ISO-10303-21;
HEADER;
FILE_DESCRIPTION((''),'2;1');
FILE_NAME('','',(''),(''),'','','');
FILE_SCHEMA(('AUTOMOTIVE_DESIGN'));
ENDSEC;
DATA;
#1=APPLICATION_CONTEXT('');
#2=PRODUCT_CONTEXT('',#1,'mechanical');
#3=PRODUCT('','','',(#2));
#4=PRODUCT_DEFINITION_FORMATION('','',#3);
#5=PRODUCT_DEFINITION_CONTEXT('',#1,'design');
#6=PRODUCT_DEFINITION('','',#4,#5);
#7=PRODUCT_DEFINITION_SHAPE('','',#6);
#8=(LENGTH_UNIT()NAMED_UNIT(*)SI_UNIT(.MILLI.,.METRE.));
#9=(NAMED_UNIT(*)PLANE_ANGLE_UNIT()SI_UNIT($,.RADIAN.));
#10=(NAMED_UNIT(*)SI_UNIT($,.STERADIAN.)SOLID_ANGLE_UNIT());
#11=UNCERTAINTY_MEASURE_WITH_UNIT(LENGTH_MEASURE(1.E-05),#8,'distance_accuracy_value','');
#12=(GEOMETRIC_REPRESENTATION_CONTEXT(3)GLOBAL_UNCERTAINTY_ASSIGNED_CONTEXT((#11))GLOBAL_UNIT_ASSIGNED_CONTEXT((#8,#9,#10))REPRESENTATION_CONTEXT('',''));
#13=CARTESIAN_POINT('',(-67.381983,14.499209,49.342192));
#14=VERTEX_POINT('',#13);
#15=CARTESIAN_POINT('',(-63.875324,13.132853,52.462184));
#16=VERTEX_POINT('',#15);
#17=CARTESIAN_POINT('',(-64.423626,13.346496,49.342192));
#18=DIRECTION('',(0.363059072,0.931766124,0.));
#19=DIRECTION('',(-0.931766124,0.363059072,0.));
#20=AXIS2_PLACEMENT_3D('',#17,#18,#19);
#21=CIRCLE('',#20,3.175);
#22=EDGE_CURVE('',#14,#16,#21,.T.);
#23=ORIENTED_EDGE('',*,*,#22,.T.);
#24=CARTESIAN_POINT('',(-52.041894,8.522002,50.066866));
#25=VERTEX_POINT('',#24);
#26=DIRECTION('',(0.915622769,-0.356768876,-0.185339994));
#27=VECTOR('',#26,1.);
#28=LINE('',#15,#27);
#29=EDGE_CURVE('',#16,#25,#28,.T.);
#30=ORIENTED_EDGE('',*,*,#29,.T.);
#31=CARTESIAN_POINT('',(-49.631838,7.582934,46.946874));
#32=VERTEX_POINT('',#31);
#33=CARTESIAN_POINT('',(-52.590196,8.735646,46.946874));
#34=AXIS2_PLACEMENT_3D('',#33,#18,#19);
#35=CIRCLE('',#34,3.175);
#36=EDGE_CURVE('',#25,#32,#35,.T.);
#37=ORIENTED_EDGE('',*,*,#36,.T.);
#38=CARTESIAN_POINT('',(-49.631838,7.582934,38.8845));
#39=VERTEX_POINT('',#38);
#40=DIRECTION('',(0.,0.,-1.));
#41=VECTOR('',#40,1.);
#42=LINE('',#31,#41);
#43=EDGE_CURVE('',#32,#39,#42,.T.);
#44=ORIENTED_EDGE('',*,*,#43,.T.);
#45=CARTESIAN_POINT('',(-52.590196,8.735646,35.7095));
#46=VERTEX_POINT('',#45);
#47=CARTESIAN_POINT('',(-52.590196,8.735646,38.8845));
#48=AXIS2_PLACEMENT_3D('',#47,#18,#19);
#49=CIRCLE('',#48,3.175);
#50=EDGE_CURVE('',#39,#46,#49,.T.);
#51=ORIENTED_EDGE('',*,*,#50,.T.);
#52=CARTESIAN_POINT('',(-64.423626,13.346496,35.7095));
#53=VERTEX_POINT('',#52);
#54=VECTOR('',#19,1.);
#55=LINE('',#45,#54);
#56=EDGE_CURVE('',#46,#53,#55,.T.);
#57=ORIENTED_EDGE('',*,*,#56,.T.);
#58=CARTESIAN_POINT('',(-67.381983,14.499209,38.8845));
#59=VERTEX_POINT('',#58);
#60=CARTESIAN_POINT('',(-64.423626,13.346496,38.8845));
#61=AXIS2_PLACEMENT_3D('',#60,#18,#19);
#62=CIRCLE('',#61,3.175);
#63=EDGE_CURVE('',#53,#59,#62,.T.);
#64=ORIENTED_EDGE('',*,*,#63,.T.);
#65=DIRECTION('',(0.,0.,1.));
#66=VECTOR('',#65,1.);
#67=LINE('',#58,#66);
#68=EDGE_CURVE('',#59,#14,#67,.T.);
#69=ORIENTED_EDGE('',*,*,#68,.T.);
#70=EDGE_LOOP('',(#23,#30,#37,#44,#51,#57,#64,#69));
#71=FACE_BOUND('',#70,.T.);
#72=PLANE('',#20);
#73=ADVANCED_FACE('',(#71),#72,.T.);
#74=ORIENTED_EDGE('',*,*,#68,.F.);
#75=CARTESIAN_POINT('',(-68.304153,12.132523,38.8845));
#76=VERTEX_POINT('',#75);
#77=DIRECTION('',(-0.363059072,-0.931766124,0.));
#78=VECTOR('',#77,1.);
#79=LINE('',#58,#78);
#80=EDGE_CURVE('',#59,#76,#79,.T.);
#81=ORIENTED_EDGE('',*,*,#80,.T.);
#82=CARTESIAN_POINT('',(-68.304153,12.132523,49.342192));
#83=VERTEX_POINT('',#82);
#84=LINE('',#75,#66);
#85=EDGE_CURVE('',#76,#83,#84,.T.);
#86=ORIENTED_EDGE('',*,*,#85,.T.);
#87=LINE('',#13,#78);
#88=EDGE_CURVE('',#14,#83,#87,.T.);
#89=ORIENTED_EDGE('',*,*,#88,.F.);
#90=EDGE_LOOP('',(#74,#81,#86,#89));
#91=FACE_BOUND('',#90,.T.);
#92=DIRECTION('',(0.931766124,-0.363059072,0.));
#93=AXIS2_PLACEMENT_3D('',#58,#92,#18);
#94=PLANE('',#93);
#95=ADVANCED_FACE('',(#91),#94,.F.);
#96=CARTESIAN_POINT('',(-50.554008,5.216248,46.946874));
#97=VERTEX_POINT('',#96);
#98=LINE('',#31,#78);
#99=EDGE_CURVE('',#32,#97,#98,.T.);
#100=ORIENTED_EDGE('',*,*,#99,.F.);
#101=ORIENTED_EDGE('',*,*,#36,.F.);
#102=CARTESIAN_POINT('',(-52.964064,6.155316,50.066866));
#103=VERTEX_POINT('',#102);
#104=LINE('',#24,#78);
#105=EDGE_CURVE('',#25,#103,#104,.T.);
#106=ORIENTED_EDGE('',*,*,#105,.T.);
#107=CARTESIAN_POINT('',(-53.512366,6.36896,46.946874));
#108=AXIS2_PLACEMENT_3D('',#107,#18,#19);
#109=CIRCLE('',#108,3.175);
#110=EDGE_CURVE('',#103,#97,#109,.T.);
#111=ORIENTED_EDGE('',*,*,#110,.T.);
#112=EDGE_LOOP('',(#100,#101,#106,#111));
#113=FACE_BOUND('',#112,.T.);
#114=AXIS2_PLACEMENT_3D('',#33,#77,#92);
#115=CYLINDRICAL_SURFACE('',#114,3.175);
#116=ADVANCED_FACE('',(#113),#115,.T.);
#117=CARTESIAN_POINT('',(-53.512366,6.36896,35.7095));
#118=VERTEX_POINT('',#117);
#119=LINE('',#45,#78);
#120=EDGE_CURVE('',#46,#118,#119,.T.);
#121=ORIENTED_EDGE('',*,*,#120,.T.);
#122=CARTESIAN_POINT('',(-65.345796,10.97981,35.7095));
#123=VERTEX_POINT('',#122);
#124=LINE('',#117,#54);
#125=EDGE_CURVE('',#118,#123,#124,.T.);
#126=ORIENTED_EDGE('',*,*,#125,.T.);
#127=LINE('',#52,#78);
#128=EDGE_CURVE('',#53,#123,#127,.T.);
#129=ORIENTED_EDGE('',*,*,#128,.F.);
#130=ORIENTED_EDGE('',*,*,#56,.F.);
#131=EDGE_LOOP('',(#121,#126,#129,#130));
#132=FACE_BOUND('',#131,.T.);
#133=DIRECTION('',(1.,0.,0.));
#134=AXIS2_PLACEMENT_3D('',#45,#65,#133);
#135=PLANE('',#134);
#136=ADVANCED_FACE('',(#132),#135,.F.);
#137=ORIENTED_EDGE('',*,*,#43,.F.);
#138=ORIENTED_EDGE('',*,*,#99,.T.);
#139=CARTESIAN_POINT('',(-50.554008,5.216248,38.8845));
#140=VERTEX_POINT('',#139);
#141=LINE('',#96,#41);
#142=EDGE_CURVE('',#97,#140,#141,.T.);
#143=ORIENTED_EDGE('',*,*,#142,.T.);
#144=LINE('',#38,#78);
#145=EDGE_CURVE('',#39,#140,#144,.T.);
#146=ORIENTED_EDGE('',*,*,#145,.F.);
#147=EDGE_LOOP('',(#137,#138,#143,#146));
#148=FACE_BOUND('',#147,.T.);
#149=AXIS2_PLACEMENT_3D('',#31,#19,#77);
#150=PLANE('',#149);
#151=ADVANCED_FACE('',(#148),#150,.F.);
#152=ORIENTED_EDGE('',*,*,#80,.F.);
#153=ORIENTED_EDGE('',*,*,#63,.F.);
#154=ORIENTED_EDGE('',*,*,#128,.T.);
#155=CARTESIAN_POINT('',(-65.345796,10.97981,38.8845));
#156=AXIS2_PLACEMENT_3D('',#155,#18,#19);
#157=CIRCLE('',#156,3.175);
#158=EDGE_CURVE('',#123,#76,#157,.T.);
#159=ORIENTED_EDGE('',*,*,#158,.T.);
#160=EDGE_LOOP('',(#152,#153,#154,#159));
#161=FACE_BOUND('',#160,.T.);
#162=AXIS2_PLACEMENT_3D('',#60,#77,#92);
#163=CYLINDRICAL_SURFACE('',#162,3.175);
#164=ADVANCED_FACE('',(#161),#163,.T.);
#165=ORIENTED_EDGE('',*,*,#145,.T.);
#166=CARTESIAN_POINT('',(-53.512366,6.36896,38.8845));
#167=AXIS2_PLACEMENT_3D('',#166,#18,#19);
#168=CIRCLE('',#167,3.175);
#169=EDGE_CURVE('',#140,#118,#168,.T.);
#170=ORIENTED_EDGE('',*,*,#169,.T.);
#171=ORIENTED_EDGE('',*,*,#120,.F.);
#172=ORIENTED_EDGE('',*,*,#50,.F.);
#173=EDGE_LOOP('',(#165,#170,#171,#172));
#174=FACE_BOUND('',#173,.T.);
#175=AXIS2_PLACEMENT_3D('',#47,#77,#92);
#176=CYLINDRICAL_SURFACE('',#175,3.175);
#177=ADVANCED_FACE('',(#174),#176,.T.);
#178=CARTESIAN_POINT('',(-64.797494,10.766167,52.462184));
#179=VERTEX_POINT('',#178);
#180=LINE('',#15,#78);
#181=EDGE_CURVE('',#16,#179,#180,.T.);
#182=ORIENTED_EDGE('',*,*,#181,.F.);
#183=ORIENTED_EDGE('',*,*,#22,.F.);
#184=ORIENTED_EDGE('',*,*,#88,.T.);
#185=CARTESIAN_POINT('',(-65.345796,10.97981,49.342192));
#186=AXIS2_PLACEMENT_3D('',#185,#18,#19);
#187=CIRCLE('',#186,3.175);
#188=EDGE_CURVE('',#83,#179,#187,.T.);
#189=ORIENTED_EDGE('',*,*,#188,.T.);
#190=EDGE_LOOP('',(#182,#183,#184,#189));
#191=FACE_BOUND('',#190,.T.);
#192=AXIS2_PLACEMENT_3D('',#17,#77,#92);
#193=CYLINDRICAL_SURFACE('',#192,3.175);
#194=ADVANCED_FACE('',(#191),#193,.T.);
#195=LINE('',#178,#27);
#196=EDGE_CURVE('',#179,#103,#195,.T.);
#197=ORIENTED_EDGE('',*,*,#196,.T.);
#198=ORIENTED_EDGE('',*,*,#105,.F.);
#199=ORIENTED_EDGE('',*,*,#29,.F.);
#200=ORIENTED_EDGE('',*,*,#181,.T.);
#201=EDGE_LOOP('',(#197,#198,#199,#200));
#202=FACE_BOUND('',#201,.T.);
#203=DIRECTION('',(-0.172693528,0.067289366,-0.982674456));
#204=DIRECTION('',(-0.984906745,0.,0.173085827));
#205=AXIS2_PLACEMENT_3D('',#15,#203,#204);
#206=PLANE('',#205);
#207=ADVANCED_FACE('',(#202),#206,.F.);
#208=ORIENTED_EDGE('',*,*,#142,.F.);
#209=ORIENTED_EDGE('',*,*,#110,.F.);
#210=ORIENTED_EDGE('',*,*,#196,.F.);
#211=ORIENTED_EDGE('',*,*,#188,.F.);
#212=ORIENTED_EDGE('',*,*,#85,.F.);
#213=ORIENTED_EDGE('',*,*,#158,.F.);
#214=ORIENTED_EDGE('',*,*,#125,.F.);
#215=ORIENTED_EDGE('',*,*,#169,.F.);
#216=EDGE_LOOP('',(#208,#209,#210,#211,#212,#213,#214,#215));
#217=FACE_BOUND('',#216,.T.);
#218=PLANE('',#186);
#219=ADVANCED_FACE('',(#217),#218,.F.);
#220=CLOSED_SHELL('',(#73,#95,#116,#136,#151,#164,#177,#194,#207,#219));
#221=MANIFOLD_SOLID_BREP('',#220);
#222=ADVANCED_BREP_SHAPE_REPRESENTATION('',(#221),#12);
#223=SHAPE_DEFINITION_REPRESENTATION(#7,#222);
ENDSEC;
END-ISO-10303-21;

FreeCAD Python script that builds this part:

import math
import FreeCAD as App
import Part
import Sketcher
Q = App.Units.Quantity

doc = App.newDocument("Part")
params = doc.addObject("Spreadsheet::Sheet", "Params")
for row, (alias, value) in enumerate([
    ("sketch1_width", "0.5 in"),
    ("sketch1_radius", "0.125 in"),
    ("pad1_length", "0.1 in"),
], start=1):
    params.set(f"A{row}", alias)
    params.set(f"B{row}", "=" + value)
    params.setAlias(f"B{row}", alias)

body = doc.addObject("PartDesign::Body", "Body")

sketch1 = doc.addObject("Sketcher::SketchObject", "Sketch")
body.addObject(sketch1)
sketch1.Placement = App.Placement(App.Vector(-4.899035, -12.573036, 0), App.Rotation(App.Vector(0.931766124, -0.363059072, 0), App.Vector(0, 0, -1), App.Vector(0.363059072, 0.931766124, 0), "ZXY"))
sketch1.addGeometry(Part.LineSegment(App.Vector(-64.3, -52.5, 0), App.Vector(-51.6, -50.1, 0)), False)
sketch1.addGeometry(Part.ArcOfCircle(Part.Circle(App.Vector(-52.2, -46.9, 0), App.Vector(0, 0, 1), 3.2), math.radians(-79), math.radians(0)), False)
sketch1.addGeometry(Part.LineSegment(App.Vector(-49, -46.9, 0), App.Vector(-49, -38.9, 0)), False)
sketch1.addGeometry(Part.ArcOfCircle(Part.Circle(App.Vector(-52.2, -38.9, 0), App.Vector(0, 0, 1), 3.2), math.radians(0), math.radians(90)), False)
sketch1.addGeometry(Part.LineSegment(App.Vector(-52.2, -35.7, 0), App.Vector(-64.9, -35.7, 0)), False)
sketch1.addGeometry(Part.ArcOfCircle(Part.Circle(App.Vector(-64.9, -38.9, 0), App.Vector(0, 0, 1), 3.2), math.radians(90), math.radians(180)), False)
sketch1.addGeometry(Part.LineSegment(App.Vector(-68, -38.9, 0), App.Vector(-68, -49.3, 0)), False)
sketch1.addGeometry(Part.ArcOfCircle(Part.Circle(App.Vector(-64.9, -49.3, 0), App.Vector(0, 0, 1), 3.2), math.radians(180), math.radians(281)), False)
sketch1.addConstraint(Sketcher.Constraint("Tangent", 0, 2, 1, 1))
sketch1.addConstraint(Sketcher.Constraint("Tangent", 1, 2, 2, 1))
sketch1.addConstraint(Sketcher.Constraint("Tangent", 2, 2, 3, 1))
sketch1.addConstraint(Sketcher.Constraint("Tangent", 3, 2, 4, 1))
sketch1.addConstraint(Sketcher.Constraint("Tangent", 4, 2, 5, 1))
sketch1.addConstraint(Sketcher.Constraint("Tangent", 5, 2, 6, 1))
sketch1.addConstraint(Sketcher.Constraint("Tangent", 6, 2, 7, 1))
sketch1.addConstraint(Sketcher.Constraint("Tangent", 7, 2, 0, 1))
sketch1.addConstraint(Sketcher.Constraint("Vertical", 2))
sketch1.addConstraint(Sketcher.Constraint("Horizontal", 4))
sketch1.addConstraint(Sketcher.Constraint("Vertical", 6))
sketch1.addConstraint(Sketcher.Constraint("Equal", 1, 3))
sketch1.addConstraint(Sketcher.Constraint("Equal", 3, 5))
sketch1.addConstraint(Sketcher.Constraint("Equal", 5, 7))
sketch1.addConstraint(Sketcher.Constraint("DistanceX", 4, 2, 4, 1, Q("0.5 in")))
sketch1.addConstraint(Sketcher.Constraint("Radius", 1, Q("0.125 in")))
sketch1.addConstraint(Sketcher.Constraint("DistanceX", 0, 2, -1, 1, Q("2.0309002 in")))
sketch1.addConstraint(Sketcher.Constraint("DistanceY", 3, 3, -1, 1, Q("38.8845 mm")))
sketch1.addConstraint(Sketcher.Constraint("DistanceY", 2, 1, 2, 2, Q("8.062374 mm")))
sketch1.addConstraint(Sketcher.Constraint("DistanceY", 6, 2, 6, 1, Q("10.457692 mm")))
sketch1.setExpression("Constraints[14]", "Params.sketch1_width")
sketch1.setExpression("Constraints[15]", "Params.sketch1_radius")
pad1 = doc.addObject("PartDesign::Pad", "Pad")
body.addObject(pad1)
pad1.Profile = sketch1
pad1.setExpression("Length", "Params.pad1_length")

doc.recompute()
